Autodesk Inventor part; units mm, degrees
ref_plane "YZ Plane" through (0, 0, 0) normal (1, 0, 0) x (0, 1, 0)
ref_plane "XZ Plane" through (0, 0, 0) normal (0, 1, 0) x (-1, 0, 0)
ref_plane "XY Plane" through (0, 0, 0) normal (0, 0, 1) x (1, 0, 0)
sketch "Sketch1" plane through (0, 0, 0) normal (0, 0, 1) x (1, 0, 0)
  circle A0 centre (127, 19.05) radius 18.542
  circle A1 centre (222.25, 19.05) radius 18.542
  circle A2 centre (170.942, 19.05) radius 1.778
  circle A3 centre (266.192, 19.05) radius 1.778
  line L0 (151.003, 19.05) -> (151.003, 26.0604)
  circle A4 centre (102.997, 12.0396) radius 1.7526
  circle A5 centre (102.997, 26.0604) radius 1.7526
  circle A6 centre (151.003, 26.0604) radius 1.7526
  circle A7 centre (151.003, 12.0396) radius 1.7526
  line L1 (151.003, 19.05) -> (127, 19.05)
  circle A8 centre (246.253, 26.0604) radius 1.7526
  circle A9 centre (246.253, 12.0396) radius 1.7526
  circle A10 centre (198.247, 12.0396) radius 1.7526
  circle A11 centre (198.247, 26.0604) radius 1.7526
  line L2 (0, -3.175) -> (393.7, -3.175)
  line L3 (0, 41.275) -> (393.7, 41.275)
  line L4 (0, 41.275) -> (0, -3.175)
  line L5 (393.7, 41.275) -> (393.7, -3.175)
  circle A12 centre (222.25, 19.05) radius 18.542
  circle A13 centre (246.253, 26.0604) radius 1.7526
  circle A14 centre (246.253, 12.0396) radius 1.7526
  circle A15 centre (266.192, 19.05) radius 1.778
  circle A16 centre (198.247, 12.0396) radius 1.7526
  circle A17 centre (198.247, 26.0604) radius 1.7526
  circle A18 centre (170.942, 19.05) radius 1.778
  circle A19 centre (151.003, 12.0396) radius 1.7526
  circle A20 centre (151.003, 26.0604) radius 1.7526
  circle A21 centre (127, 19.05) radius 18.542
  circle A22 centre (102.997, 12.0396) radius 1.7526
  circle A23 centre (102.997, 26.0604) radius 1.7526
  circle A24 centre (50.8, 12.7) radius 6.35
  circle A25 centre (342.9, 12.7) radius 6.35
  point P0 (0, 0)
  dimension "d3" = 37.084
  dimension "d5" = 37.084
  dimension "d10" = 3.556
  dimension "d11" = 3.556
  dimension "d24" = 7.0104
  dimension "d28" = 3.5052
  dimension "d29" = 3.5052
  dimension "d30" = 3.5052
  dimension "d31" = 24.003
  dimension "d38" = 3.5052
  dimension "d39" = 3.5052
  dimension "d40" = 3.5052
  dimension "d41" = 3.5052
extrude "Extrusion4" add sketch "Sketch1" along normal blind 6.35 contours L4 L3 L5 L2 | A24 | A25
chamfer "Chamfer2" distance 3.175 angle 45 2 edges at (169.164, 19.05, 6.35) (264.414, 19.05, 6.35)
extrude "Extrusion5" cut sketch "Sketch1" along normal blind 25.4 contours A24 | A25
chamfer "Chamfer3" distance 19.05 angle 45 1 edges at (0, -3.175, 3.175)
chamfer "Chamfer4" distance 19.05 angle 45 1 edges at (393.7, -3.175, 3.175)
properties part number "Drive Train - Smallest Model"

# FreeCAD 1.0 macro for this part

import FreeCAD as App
import Part
import Sketcher
Q = App.Units.Quantity


def edges_at(feature, points):
    """Names of the edges that pass closest to the given points."""
    edges = feature.Shape.Edges
    near = lambda p: min(range(len(edges)), key=lambda i: edges[i].distToShape(Part.Vertex(*p))[0])
    return sorted({f"Edge{near(p) + 1}" for p in points})


def add_polygon(sketch, points):
    """Adds a closed chain of lines whose ends are joined by coincident constraints."""
    first, n = sketch.GeometryCount, len(points)
    for a, b in zip(points, points[1:] + points[:1]):
        sketch.addGeometry(Part.LineSegment(App.Vector(*a, 0), App.Vector(*b, 0)), False)
    for i in range(n):
        sketch.addConstraint(Sketcher.Constraint("Coincident", first + i, 2, first + (i + 1) % n, 1))

doc = App.newDocument("Part")
params = doc.addObject("Spreadsheet::Sheet", "Params")
for row, (alias, value) in enumerate([
    ("sketch1_diameter", "1.46 in"),
    ("sketch1_diameter2", "0.14 in"),
    ("sketch1_diameter3", "0.138 in"),
    ("sketch1_width", "15.5 in"),
    ("sketch1_height", "1.75 in"),
    ("pad1_length", "0.25 in"),
    ("chamfer_size", "0.125 in"),
    ("sketch2_diameter", "0.5 in"),
    ("pocket1_length", "1 in"),
    ("chamfer2_size", "0.75 in"),
    ("chamfer3_size", "0.75 in"),
], start=1):
    params.set(f"A{row}", alias)
    params.set(f"B{row}", "=" + value)
    params.setAlias(f"B{row}", alias)

body = doc.addObject("PartDesign::Body", "Body")

sketch1 = body.newObject("Sketcher::SketchObject", "Sketch")
sketch1.AttachmentSupport = (doc.getObject("XY_Plane"), [""])
sketch1.MapMode = "FlatFace"
add_polygon(sketch1, [(0, 41.3), (0, -3.2), (393.7, -3.2), (393.7, 41.3)])
sketch1.addGeometry(Part.Circle(App.Vector(103, 12, 0), App.Vector(0, 0, 1), 1.8), False)
sketch1.addGeometry(Part.Circle(App.Vector(151, 12, 0), App.Vector(0, 0, 1), 1.8), False)
sketch1.addGeometry(Part.Circle(App.Vector(198.2, 12, 0), App.Vector(0, 0, 1), 1.8), False)
sketch1.addGeometry(Part.Circle(App.Vector(246.3, 12, 0), App.Vector(0, 0, 1), 1.8), False)
sketch1.addGeometry(Part.Circle(App.Vector(127, 19.1, 0), App.Vector(0, 0, 1), 18.5), False)
sketch1.addGeometry(Part.Circle(App.Vector(170.9, 19.1, 0), App.Vector(0, 0, 1), 1.8), False)
sketch1.addGeometry(Part.Circle(App.Vector(103, 26.1, 0), App.Vector(0, 0, 1), 1.8), False)
sketch1.addGeometry(Part.Circle(App.Vector(151, 26.1, 0), App.Vector(0, 0, 1), 1.8), False)
sketch1.addGeometry(Part.Circle(App.Vector(222.2, 19.1, 0), App.Vector(0, 0, 1), 18.5), False)
sketch1.addGeometry(Part.Circle(App.Vector(266.2, 19.1, 0), App.Vector(0, 0, 1), 1.8), False)
sketch1.addGeometry(Part.Circle(App.Vector(198.2, 26.1, 0), App.Vector(0, 0, 1), 1.8), False)
sketch1.addGeometry(Part.Circle(App.Vector(246.3, 26.1, 0), App.Vector(0, 0, 1), 1.8), False)
sketch1.addConstraint([
    Sketcher.Constraint("Vertical", 0),
    Sketcher.Constraint("Horizontal", 1),
    Sketcher.Constraint("Vertical", 2),
    Sketcher.Constraint("Horizontal", 3),
    Sketcher.Constraint("Equal", 4, 5),
    Sketcher.Constraint("Equal", 5, 6),
    Sketcher.Constraint("Equal", 6, 7),
    Sketcher.Constraint("Equal", 7, 10),
    Sketcher.Constraint("Equal", 10, 11),
    Sketcher.Constraint("Equal", 8, 12),
    Sketcher.Constraint("Equal", 9, 13),
    Sketcher.Constraint("Equal", 11, 14),
    Sketcher.Constraint("Equal", 14, 15),
    Sketcher.Constraint("PointOnObject", 0, 2, -2),
    Sketcher.Constraint("Horizontal", 4, 3, 5, 3),
    Sketcher.Constraint("Horizontal", 5, 3, 6, 3),
    Sketcher.Constraint("Horizontal", 6, 3, 7, 3),
    Sketcher.Constraint("Horizontal", 8, 3, 9, 3),
    Sketcher.Constraint("Horizontal", 10, 3, 11, 3),
    Sketcher.Constraint("Horizontal", 9, 3, 12, 3),
    Sketcher.Constraint("Horizontal", 12, 3, 13, 3),
    Sketcher.Constraint("Horizontal", 11, 3, 14, 3),
    Sketcher.Constraint("Horizontal", 14, 3, 15, 3),
    Sketcher.Constraint("Vertical", 4, 3, 10, 3),
    Sketcher.Constraint("Vertical", 5, 3, 11, 3),
    Sketcher.Constraint("Vertical", 6, 3, 14, 3),
    Sketcher.Constraint("Vertical", 7, 3, 15, 3),
    Sketcher.Constraint("Diameter", 8, Q("1.46 in")),
    Sketcher.Constraint("Diameter", 9, Q("0.14 in")),
    Sketcher.Constraint("Diameter", 4, Q("0.138 in")),
    Sketcher.Constraint("DistanceX", 1, 1, 1, 2, Q("15.5 in")),
    Sketcher.Constraint("DistanceX", -1, 1, 8, 3, Q("5 in")),
    Sketcher.Constraint("DistanceX", 8, 3, 5, 3, Q("0.945 in")),
    Sketcher.Constraint("DistanceY", 5, 3, 8, 3, Q("0.276 in")),
    Sketcher.Constraint("DistanceX", 4, 3, 8, 3, Q("0.945 in")),
    Sketcher.Constraint("DistanceY", 8, 3, 10, 3, Q("0.276 in")),
    Sketcher.Constraint("DistanceX", 6, 3, 12, 3, Q("0.945 in")),
    Sketcher.Constraint("DistanceX", 12, 3, 7, 3, Q("0.945 in")),
    Sketcher.Constraint("DistanceY", 0, 2, 0, 1, Q("1.75 in")),
    Sketcher.Constraint("DistanceY", -1, 1, 8, 3, Q("0.75 in")),
    Sketcher.Constraint("DistanceX", -1, 1, 9, 3, Q("6.73 in")),
    Sketcher.Constraint("DistanceX", -1, 1, 12, 3, Q("8.75 in")),
    Sketcher.Constraint("DistanceX", -1, 1, 13, 3, Q("10.48 in")),
    Sketcher.Constraint("DistanceY", 0, 2, -1, 1, Q("0.125 in")),
])
sketch1.setExpression("Constraints[31]", "Params.sketch1_diameter")
sketch1.setExpression("Constraints[32]", "Params.sketch1_diameter2")
sketch1.setExpression("Constraints[33]", "Params.sketch1_diameter3")
sketch1.setExpression("Constraints[34]", "Params.sketch1_width")
sketch1.setExpression("Constraints[42]", "Params.sketch1_height")
pad1 = body.newObject("PartDesign::Pad", "Pad")
pad1.Profile = sketch1
pad1.setExpression("Length", "Params.pad1_length")
doc.recompute()

chamfer = body.newObject("PartDesign::Chamfer", "Chamfer")
chamfer.Base = (pad1, edges_at(pad1, [(169.164, 19.05, 6.35), (264.414, 19.05, 6.35)]))
chamfer.setExpression("Size", "Params.chamfer_size")

sketch2 = body.newObject("Sketcher::SketchObject", "Sketch001")
sketch2.AttachmentSupport = (doc.getObject("XY_Plane"), [""])
sketch2.MapMode = "FlatFace"
sketch2.addGeometry([
    Part.Circle(App.Vector(51, 13, 0), App.Vector(0, 0, 1), 6),
    Part.Circle(App.Vector(343, 13, 0), App.Vector(0, 0, 1), 6),
], False)
sketch2.addConstraint([
    Sketcher.Constraint("Equal", 0, 1),
    Sketcher.Constraint("Horizontal", 0, 3, 1, 3),
    Sketcher.Constraint("Diameter", 0, Q("0.5 in")),
    Sketcher.Constraint("DistanceX", -1, 1, 0, 3, Q("2 in")),
    Sketcher.Constraint("DistanceY", -1, 1, 0, 3, Q("0.5 in")),
    Sketcher.Constraint("DistanceX", -1, 1, 1, 3, Q("13.5 in")),
])
sketch2.setExpression("Constraints[2]", "Params.sketch2_diameter")
pocket1 = body.newObject("PartDesign::Pocket", "Pocket")
pocket1.Profile = sketch2
pocket1.setExpression("Length", "Params.pocket1_length")
pocket1.Reversed = True
doc.recompute()

chamfer2 = body.newObject("PartDesign::Chamfer", "Chamfer001")
chamfer2.Base = (pocket1, edges_at(pocket1, [(0, -3.175, 3.175)]))
chamfer2.setExpression("Size", "Params.chamfer2_size")
doc.recompute()

chamfer3 = body.newObject("PartDesign::Chamfer", "Chamfer002")
chamfer3.Base = (chamfer2, edges_at(chamfer2, [(393.7, -3.175, 3.175)]))
chamfer3.setExpression("Size", "Params.chamfer3_size")

doc.recompute()
